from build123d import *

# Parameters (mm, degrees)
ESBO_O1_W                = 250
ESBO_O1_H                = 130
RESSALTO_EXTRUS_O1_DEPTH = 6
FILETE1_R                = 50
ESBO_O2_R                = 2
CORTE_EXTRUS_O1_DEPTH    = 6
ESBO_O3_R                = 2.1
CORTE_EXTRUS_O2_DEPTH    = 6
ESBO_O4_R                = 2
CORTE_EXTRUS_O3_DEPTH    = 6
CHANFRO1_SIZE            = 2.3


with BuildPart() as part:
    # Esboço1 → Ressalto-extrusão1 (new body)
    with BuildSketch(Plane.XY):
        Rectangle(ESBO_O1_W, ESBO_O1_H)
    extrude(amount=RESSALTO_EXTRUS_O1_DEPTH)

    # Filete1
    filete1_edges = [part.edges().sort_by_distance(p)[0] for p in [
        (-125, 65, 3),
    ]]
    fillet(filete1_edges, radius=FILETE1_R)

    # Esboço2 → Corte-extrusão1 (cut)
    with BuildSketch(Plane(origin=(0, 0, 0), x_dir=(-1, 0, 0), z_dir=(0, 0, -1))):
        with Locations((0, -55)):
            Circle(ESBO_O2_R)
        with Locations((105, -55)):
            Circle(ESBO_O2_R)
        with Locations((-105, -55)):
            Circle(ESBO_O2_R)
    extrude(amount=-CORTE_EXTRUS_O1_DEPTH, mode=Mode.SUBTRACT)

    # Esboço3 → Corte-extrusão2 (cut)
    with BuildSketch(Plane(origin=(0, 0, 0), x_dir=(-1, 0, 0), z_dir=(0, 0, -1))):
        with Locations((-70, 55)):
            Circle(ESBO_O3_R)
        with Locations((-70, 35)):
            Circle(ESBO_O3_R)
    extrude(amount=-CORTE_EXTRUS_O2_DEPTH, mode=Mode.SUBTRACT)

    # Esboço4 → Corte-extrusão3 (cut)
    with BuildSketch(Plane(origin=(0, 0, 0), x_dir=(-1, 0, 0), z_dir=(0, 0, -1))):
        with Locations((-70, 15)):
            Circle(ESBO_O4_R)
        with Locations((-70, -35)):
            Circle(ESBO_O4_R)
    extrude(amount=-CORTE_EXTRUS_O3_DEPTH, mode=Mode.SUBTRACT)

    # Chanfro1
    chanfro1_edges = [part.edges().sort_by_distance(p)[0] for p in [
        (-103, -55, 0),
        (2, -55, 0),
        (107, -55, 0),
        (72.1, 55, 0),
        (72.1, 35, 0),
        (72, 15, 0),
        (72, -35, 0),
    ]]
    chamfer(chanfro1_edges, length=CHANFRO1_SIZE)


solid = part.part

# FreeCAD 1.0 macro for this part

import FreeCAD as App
import Part
import Sketcher


def edges_at(feature, points):
    """Names of the edges that pass closest to the given points."""
    edges = feature.Shape.Edges
    near = lambda p: min(range(len(edges)), key=lambda i: edges[i].distToShape(Part.Vertex(*p))[0])
    return sorted({f"Edge{near(p) + 1}" for p in points})


def add_polygon(sketch, points):
    """Adds a closed chain of lines whose ends are joined by coincident constraints."""
    first, n = sketch.GeometryCount, len(points)
    for a, b in zip(points, points[1:] + points[:1]):
        sketch.addGeometry(Part.LineSegment(App.Vector(*a, 0), App.Vector(*b, 0)), False)
    for i in range(n):
        sketch.addConstraint(Sketcher.Constraint("Coincident", first + i, 2, first + (i + 1) % n, 1))

doc = App.newDocument("Part")
body = doc.addObject("PartDesign::Body", "Body")

sketch1 = doc.addObject("Sketcher::SketchObject", "Sketch")
body.addObject(sketch1)
sketch1.AttachmentSupport = (doc.XY_Plane, [""])
sketch1.MapMode = "FlatFace"
add_polygon(sketch1, [(-125, 65), (-125, -65), (125, -65), (125, 65)])
sketch1.addConstraint([
    Sketcher.Constraint("Vertical", 0),
    Sketcher.Constraint("Horizontal", 1),
    Sketcher.Constraint("Vertical", 2),
    Sketcher.Constraint("Horizontal", 3),
    Sketcher.Constraint("Symmetric", 0, 2, 2, 2, -1, 1),
    Sketcher.Constraint("DistanceX", 1, 1, 1, 2, 250.0),
    Sketcher.Constraint("DistanceY", 0, 2, 0, 1, 130.0),
])
pad1 = doc.addObject("PartDesign::Pad", "Pad")
body.addObject(pad1)
pad1.Profile = sketch1
pad1.Length = 6
doc.recompute()

fillet = doc.addObject("PartDesign::Fillet", "Fillet")
body.addObject(fillet)
fillet.Base = (pad1, edges_at(pad1, [(-125, 65, 3)]))
fillet.Radius = 50

sketch2 = doc.addObject("Sketcher::SketchObject", "Sketch001")
body.addObject(sketch2)
sketch2.AttachmentSupport = (doc.XY_Plane, [""])
sketch2.MapMode = "FlatFace"
sketch2.addGeometry([
    Part.Circle(App.Vector(0, -55, 0), App.Vector(0, 0, 1), 2),
    Part.Circle(App.Vector(-105, -55, 0), App.Vector(0, 0, 1), 2),
    Part.Circle(App.Vector(105, -55, 0), App.Vector(0, 0, 1), 2),
], False)
sketch2.addConstraint([
    Sketcher.Constraint("Equal", 0, 1),
    Sketcher.Constraint("Equal", 1, 2),
    Sketcher.Constraint("Symmetric", 1, 3, 2, 3, -2),
    Sketcher.Constraint("PointOnObject", 0, 3, -2),
    Sketcher.Constraint("Horizontal", 0, 3, 1, 3),
    Sketcher.Constraint("Diameter", 0, 4.0),
    Sketcher.Constraint("DistanceY", 0, 3, -1, 1, 55.0),
    Sketcher.Constraint("DistanceX", 1, 3, -1, 1, 105.0),
])
pocket1 = doc.addObject("PartDesign::Pocket", "Pocket")
body.addObject(pocket1)
pocket1.Profile = sketch2
pocket1.Length = 6
pocket1.Reversed = True

sketch3 = doc.addObject("Sketcher::SketchObject", "Sketch002")
body.addObject(sketch3)
sketch3.AttachmentSupport = (doc.XY_Plane, [""])
sketch3.MapMode = "FlatFace"
sketch3.addGeometry([
    Part.Circle(App.Vector(70, 55, 0), App.Vector(0, 0, 1), 2.1),
    Part.Circle(App.Vector(70, 35, 0), App.Vector(0, 0, 1), 2.1),
], False)
sketch3.addConstraint([
    Sketcher.Constraint("Equal", 0, 1),
    Sketcher.Constraint("Vertical", 0, 3, 1, 3),
    Sketcher.Constraint("Diameter", 0, 4.2),
    Sketcher.Constraint("DistanceX", -1, 1, 0, 3, 70.0),
    Sketcher.Constraint("DistanceY", -1, 1, 0, 3, 55.0),
    Sketcher.Constraint("DistanceY", -1, 1, 1, 3, 35.0),
])
pocket2 = doc.addObject("PartDesign::Pocket", "Pocket001")
body.addObject(pocket2)
pocket2.Profile = sketch3
pocket2.Length = 6
pocket2.Reversed = True

sketch4 = doc.addObject("Sketcher::SketchObject", "Sketch003")
body.addObject(sketch4)
sketch4.AttachmentSupport = (doc.XY_Plane, [""])
sketch4.MapMode = "FlatFace"
sketch4.addGeometry([
    Part.Circle(App.Vector(70, 15, 0), App.Vector(0, 0, 1), 2),
    Part.Circle(App.Vector(70, -35, 0), App.Vector(0, 0, 1), 2),
], False)
sketch4.addConstraint([
    Sketcher.Constraint("Equal", 0, 1),
    Sketcher.Constraint("Vertical", 0, 3, 1, 3),
    Sketcher.Constraint("Diameter", 0, 4.0),
    Sketcher.Constraint("DistanceX", -1, 1, 0, 3, 70.0),
    Sketcher.Constraint("DistanceY", -1, 1, 0, 3, 15.0),
    Sketcher.Constraint("DistanceY", 1, 3, -1, 1, 35.0),
])
pocket3 = doc.addObject("PartDesign::Pocket", "Pocket002")
body.addObject(pocket3)
pocket3.Profile = sketch4
pocket3.Length = 6
pocket3.Reversed = True
doc.recompute()

chamfer = doc.addObject("PartDesign::Chamfer", "Chamfer")
body.addObject(chamfer)
chamfer.Base = (pocket3, edges_at(pocket3, [
    (-103, -55, 0),
    (2, -55, 0),
    (107, -55, 0),
    (72.1, 55, 0),
    (72.1, 35, 0),
    (72, 15, 0),
    (72, -35, 0),
]))
chamfer.Size = 2.3

doc.recompute()
